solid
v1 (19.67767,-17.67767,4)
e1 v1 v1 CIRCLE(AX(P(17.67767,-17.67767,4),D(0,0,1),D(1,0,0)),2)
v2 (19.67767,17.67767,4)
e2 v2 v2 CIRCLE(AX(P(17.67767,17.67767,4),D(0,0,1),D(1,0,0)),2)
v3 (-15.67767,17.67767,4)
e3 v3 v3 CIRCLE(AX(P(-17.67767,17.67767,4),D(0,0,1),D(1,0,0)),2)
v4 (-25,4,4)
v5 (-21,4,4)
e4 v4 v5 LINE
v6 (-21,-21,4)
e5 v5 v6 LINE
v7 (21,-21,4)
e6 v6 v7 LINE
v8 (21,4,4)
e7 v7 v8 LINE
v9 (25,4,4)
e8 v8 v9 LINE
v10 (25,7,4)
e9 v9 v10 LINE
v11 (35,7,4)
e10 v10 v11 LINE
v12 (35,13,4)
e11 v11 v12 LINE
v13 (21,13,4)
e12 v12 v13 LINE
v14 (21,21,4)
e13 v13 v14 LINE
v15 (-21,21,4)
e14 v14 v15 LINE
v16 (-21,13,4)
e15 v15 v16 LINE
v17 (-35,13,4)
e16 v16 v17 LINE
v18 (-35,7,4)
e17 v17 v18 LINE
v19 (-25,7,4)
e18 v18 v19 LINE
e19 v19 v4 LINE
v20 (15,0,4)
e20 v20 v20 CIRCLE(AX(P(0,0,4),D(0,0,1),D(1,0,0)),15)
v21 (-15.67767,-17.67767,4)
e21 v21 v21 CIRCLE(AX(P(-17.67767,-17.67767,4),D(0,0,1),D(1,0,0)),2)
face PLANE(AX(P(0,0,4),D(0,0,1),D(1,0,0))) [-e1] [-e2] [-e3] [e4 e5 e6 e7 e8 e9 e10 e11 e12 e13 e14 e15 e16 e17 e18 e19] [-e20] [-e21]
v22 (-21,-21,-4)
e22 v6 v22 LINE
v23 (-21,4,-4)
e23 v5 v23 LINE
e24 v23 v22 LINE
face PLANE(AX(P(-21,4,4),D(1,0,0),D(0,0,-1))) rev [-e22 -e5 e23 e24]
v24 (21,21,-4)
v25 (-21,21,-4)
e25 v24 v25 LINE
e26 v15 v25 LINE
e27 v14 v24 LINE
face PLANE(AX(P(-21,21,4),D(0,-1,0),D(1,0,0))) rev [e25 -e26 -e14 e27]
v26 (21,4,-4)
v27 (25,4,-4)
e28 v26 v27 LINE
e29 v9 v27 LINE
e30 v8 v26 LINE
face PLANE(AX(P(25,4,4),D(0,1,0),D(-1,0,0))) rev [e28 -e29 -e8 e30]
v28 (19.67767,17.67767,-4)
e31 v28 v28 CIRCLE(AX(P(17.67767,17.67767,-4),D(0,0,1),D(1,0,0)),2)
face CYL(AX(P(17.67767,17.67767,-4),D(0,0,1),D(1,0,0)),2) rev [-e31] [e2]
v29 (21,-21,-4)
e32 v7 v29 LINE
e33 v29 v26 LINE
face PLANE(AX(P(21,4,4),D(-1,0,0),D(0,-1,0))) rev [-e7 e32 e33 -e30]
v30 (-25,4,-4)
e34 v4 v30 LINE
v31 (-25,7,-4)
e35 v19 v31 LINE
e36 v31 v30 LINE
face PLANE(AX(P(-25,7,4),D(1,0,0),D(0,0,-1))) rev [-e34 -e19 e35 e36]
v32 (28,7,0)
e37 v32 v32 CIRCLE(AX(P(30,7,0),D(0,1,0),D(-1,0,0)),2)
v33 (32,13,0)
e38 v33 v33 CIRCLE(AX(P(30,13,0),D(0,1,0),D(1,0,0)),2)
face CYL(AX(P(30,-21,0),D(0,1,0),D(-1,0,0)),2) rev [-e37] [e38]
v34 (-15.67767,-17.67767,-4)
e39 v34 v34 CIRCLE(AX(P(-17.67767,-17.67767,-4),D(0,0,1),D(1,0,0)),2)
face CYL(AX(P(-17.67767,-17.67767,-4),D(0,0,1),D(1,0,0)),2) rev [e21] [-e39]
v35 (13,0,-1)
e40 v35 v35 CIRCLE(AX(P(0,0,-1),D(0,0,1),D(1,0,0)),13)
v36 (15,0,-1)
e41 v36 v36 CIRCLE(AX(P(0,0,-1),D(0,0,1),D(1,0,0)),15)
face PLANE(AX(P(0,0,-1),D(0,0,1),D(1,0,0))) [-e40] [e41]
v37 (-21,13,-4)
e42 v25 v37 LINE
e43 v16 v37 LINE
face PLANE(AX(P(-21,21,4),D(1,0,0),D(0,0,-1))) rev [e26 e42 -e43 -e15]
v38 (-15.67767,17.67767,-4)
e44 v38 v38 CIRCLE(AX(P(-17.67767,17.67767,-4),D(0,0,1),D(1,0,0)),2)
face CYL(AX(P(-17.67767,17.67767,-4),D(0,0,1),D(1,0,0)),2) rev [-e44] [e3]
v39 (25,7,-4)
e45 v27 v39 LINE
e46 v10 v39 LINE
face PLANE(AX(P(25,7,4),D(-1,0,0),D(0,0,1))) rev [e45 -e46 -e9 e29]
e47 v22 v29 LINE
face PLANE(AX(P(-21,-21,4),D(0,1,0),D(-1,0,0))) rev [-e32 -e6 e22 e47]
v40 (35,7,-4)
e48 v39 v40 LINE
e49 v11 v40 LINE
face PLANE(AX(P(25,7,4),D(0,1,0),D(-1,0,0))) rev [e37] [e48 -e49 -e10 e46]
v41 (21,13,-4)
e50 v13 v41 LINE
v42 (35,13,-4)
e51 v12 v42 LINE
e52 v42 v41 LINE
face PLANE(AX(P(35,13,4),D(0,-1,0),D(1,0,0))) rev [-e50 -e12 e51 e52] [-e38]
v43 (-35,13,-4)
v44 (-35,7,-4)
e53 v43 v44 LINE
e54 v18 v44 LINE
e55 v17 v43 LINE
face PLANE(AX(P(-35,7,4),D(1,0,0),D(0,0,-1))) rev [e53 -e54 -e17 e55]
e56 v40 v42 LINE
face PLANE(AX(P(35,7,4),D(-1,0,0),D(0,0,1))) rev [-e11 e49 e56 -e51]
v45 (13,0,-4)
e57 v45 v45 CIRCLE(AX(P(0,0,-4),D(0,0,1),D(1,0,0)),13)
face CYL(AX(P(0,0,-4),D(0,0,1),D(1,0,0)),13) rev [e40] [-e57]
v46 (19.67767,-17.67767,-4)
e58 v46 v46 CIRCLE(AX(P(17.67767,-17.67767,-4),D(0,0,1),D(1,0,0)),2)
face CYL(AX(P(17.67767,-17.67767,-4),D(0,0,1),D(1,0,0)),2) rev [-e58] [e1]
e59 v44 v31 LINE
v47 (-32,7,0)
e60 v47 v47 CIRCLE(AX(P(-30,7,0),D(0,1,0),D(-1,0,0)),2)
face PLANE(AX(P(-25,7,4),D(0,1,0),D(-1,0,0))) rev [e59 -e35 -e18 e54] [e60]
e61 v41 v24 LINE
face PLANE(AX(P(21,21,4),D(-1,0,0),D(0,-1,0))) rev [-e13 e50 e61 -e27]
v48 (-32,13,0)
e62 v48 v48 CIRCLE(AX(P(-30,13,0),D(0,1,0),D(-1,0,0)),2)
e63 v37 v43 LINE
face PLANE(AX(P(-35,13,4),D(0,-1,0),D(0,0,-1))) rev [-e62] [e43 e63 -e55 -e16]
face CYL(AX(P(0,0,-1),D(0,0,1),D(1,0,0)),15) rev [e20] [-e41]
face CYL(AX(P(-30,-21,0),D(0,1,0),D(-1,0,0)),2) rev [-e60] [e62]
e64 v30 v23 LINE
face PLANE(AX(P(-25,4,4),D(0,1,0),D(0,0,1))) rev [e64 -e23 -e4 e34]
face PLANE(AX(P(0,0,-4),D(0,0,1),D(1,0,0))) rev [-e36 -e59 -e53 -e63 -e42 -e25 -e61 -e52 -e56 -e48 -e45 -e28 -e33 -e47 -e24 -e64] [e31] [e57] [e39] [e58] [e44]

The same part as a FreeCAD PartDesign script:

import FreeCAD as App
import Part
import Sketcher
Q = App.Units.Quantity

doc = App.newDocument("Part")
body = doc.addObject("PartDesign::Body", "Body")

# Sketch on XY plane
sketch1 = body.newObject("Sketcher::SketchObject", "Sketch")
sketch1.AttachmentSupport = (doc.getObject("XY_Plane"), [""])
sketch1.MapMode = "FlatFace"
sketch1.addGeometry([
    Part.LineSegment(App.Vector(-35, 7, 0), App.Vector(-25, 7, 0)),  # 0
    Part.LineSegment(App.Vector(-25, 7, 0), App.Vector(-25, 4, 0)),  # 1
    Part.LineSegment(App.Vector(-25, 4, 0), App.Vector(-21, 4, 0)),  # 2
    Part.LineSegment(App.Vector(-21, 4, 0), App.Vector(-21, -21, 0)),  # 3
    Part.LineSegment(App.Vector(-21, -21, 0), App.Vector(21, -21, 0)),  # 4
    Part.LineSegment(App.Vector(21, -21, 0), App.Vector(21, 4, 0)),  # 5
    Part.LineSegment(App.Vector(21, 4, 0), App.Vector(25, 4, 0)),  # 6
    Part.LineSegment(App.Vector(25, 4, 0), App.Vector(25, 7, 0)),  # 7
    Part.LineSegment(App.Vector(25, 7, 0), App.Vector(35, 7, 0)),  # 8
    Part.LineSegment(App.Vector(35, 7, 0), App.Vector(35, 13, 0)),  # 9
    Part.LineSegment(App.Vector(35, 13, 0), App.Vector(21, 13, 0)),  # 10
    Part.LineSegment(App.Vector(21, 13, 0), App.Vector(21, 21, 0)),  # 11
    Part.LineSegment(App.Vector(21, 21, 0), App.Vector(-21, 21, 0)),  # 12
    Part.LineSegment(App.Vector(-21, 21, 0), App.Vector(-21, 13, 0)),  # 13
    Part.LineSegment(App.Vector(-21, 13, 0), App.Vector(-35, 13, 0)),  # 14
    Part.LineSegment(App.Vector(-35, 13, 0), App.Vector(-35, 7, 0)),  # 15
], False)
sketch1.addConstraint([
    Sketcher.Constraint("Coincident", 0, 2, 1, 1),
    Sketcher.Constraint("Coincident", 1, 2, 2, 1),
    Sketcher.Constraint("Coincident", 2, 2, 3, 1),
    Sketcher.Constraint("Coincident", 3, 2, 4, 1),
    Sketcher.Constraint("Coincident", 4, 2, 5, 1),
    Sketcher.Constraint("Coincident", 5, 2, 6, 1),
    Sketcher.Constraint("Coincident", 6, 2, 7, 1),
    Sketcher.Constraint("Coincident", 7, 2, 8, 1),
    Sketcher.Constraint("Coincident", 8, 2, 9, 1),
    Sketcher.Constraint("Coincident", 9, 2, 10, 1),
    Sketcher.Constraint("Coincident", 10, 2, 11, 1),
    Sketcher.Constraint("Coincident", 11, 2, 12, 1),
    Sketcher.Constraint("Coincident", 12, 2, 13, 1),
    Sketcher.Constraint("Coincident", 13, 2, 14, 1),
    Sketcher.Constraint("Coincident", 14, 2, 15, 1),
    Sketcher.Constraint("Coincident", 15, 2, 0, 1),
    Sketcher.Constraint("Horizontal", 0),
    Sketcher.Constraint("Vertical", 1),
    Sketcher.Constraint("Horizontal", 2),
    Sketcher.Constraint("Vertical", 3),
    Sketcher.Constraint("Horizontal", 4),
    Sketcher.Constraint("Vertical", 5),
    Sketcher.Constraint("Horizontal", 6),
    Sketcher.Constraint("Vertical", 7),
    Sketcher.Constraint("Horizontal", 8),
    Sketcher.Constraint("Vertical", 9),
    Sketcher.Constraint("Horizontal", 10),
    Sketcher.Constraint("Vertical", 11),
    Sketcher.Constraint("Horizontal", 12),
    Sketcher.Constraint("Vertical", 13),
    Sketcher.Constraint("Horizontal", 14),
    Sketcher.Constraint("Vertical", 15),
    Sketcher.Constraint("Symmetric", 3, 2, 11, 2, -1, 1),
    Sketcher.Constraint("Symmetric", 2, 2, 5, 2, -2),
    Sketcher.Constraint("Symmetric", 0, 2, 7, 2, -2),
    Sketcher.Constraint("Symmetric", 10, 2, 13, 2, -2),
    Sketcher.Constraint("Equal", 0, 8),
    Sketcher.Constraint("DistanceX", 0, 1, 0, 2, Q("10 mm")),
    Sketcher.Constraint("DistanceX", 2, 1, 2, 2, Q("4 mm")),
    Sketcher.Constraint("DistanceX", 4, 1, 4, 2, Q("42 mm")),
    Sketcher.Constraint("DistanceY", 1, 2, 1, 1, Q("3 mm")),
    Sketcher.Constraint("DistanceY", 3, 2, 3, 1, Q("25 mm")),
    Sketcher.Constraint("DistanceY", 9, 1, 9, 2, Q("6 mm")),
    Sketcher.Constraint("DistanceY", 11, 1, 11, 2, Q("8 mm")),
])
pad1 = body.newObject("PartDesign::Pad", "Pad")
pad1.Profile = sketch1
pad1.Length = 8
pad1.Midplane = True

# Sketch on XY plane
sketch2 = body.newObject("Sketcher::SketchObject", "Sketch001")
sketch2.AttachmentSupport = (doc.getObject("XY_Plane"), [""])
sketch2.MapMode = "FlatFace"
sketch2.AttachmentOffset = App.Placement(App.Vector(0, 0, 4), App.Rotation())
sketch2.addGeometry(Part.Circle(App.Vector(0, 0, 0), App.Vector(0, 0, 1), 15), False)
sketch2.addConstraint([
    Sketcher.Constraint("Coincident", 0, 3, -1, 1),
    Sketcher.Constraint("Diameter", 0, Q("30 mm")),
])
pocket1 = body.newObject("PartDesign::Pocket", "Pocket")
pocket1.Profile = sketch2
pocket1.Length = 5

# Sketch on XY plane
sketch3 = body.newObject("Sketcher::SketchObject", "Sketch002")
sketch3.AttachmentSupport = (doc.getObject("XY_Plane"), [""])
sketch3.MapMode = "FlatFace"
sketch3.AttachmentOffset = App.Placement(App.Vector(0, 0, 4), App.Rotation())
sketch3.addGeometry([
    Part.Circle(App.Vector(-17.67767, 17.67767, 0), App.Vector(0, 0, 1), 2),
    Part.Circle(App.Vector(17.67767, 17.67767, 0), App.Vector(0, 0, 1), 2),
    Part.Circle(App.Vector(17.67767, -17.67767, 0), App.Vector(0, 0, 1), 2),
    Part.Circle(App.Vector(-17.67767, -17.67767, 0), App.Vector(0, 0, 1), 2),
], False)
sketch3.addConstraint([
    Sketcher.Constraint("Equal", 0, 1),
    Sketcher.Constraint("Equal", 1, 2),
    Sketcher.Constraint("Equal", 2, 3),
    Sketcher.Constraint("Symmetric", 0, 3, 2, 3, -1, 1),
    Sketcher.Constraint("Symmetric", 1, 3, 3, 3, -1, 1),
    Sketcher.Constraint("Symmetric", 0, 3, 1, 3, -2),
    Sketcher.Constraint("Diameter", 0, Q("4 mm")),
    Sketcher.Constraint("DistanceX", 0, 3, -1, 1, Q("17.67767 mm")),
    Sketcher.Constraint("DistanceY", -1, 1, 0, 3, Q("17.67767 mm")),
])
pocket2 = body.newObject("PartDesign::Pocket", "Pocket001")
pocket2.Profile = sketch3
pocket2.Type = "ThroughAll"

# Sketch on XZ plane
sketch4 = body.newObject("Sketcher::SketchObject", "Sketch003")
sketch4.AttachmentSupport = (doc.getObject("XZ_Plane"), [""])
sketch4.MapMode = "FlatFace"
sketch4.AttachmentOffset = App.Placement(App.Vector(0, 0, -13), App.Rotation())
sketch4.addGeometry([
    Part.Circle(App.Vector(-30, 0, 0), App.Vector(0, 0, 1), 2),
    Part.Circle(App.Vector(30, 0, 0), App.Vector(0, 0, 1), 2),
], False)
sketch4.addConstraint([
    Sketcher.Constraint("Equal", 0, 1),
    Sketcher.Constraint("Symmetric", 0, 3, 1, 3, -1, 1),
    Sketcher.Constraint("PointOnObject", 0, 3, -1),
    Sketcher.Constraint("Diameter", 0, Q("4 mm")),
    Sketcher.Constraint("DistanceX", 0, 3, -1, 1, Q("30 mm")),
])
pocket3 = body.newObject("PartDesign::Pocket", "Pocket002")
pocket3.Profile = sketch4
pocket3.Type = "ThroughAll"
pocket3.Reversed = True

# Sketch on XY plane
sketch5 = body.newObject("Sketcher::SketchObject", "Sketch004")
sketch5.AttachmentSupport = (doc.getObject("XY_Plane"), [""])
sketch5.MapMode = "FlatFace"
sketch5.AttachmentOffset = App.Placement(App.Vector(0, 0, -1), App.Rotation())
sketch5.addGeometry(Part.Circle(App.Vector(0, 0, 0), App.Vector(0, 0, 1), 13), False)
sketch5.addConstraint([
    Sketcher.Constraint("Coincident", 0, 3, -1, 1),
    Sketcher.Constraint("Diameter", 0, Q("26 mm")),
])
pocket4 = body.newObject("PartDesign::Pocket", "Pocket003")
pocket4.Profile = sketch5
pocket4.Type = "ThroughAll"

doc.recompute()
